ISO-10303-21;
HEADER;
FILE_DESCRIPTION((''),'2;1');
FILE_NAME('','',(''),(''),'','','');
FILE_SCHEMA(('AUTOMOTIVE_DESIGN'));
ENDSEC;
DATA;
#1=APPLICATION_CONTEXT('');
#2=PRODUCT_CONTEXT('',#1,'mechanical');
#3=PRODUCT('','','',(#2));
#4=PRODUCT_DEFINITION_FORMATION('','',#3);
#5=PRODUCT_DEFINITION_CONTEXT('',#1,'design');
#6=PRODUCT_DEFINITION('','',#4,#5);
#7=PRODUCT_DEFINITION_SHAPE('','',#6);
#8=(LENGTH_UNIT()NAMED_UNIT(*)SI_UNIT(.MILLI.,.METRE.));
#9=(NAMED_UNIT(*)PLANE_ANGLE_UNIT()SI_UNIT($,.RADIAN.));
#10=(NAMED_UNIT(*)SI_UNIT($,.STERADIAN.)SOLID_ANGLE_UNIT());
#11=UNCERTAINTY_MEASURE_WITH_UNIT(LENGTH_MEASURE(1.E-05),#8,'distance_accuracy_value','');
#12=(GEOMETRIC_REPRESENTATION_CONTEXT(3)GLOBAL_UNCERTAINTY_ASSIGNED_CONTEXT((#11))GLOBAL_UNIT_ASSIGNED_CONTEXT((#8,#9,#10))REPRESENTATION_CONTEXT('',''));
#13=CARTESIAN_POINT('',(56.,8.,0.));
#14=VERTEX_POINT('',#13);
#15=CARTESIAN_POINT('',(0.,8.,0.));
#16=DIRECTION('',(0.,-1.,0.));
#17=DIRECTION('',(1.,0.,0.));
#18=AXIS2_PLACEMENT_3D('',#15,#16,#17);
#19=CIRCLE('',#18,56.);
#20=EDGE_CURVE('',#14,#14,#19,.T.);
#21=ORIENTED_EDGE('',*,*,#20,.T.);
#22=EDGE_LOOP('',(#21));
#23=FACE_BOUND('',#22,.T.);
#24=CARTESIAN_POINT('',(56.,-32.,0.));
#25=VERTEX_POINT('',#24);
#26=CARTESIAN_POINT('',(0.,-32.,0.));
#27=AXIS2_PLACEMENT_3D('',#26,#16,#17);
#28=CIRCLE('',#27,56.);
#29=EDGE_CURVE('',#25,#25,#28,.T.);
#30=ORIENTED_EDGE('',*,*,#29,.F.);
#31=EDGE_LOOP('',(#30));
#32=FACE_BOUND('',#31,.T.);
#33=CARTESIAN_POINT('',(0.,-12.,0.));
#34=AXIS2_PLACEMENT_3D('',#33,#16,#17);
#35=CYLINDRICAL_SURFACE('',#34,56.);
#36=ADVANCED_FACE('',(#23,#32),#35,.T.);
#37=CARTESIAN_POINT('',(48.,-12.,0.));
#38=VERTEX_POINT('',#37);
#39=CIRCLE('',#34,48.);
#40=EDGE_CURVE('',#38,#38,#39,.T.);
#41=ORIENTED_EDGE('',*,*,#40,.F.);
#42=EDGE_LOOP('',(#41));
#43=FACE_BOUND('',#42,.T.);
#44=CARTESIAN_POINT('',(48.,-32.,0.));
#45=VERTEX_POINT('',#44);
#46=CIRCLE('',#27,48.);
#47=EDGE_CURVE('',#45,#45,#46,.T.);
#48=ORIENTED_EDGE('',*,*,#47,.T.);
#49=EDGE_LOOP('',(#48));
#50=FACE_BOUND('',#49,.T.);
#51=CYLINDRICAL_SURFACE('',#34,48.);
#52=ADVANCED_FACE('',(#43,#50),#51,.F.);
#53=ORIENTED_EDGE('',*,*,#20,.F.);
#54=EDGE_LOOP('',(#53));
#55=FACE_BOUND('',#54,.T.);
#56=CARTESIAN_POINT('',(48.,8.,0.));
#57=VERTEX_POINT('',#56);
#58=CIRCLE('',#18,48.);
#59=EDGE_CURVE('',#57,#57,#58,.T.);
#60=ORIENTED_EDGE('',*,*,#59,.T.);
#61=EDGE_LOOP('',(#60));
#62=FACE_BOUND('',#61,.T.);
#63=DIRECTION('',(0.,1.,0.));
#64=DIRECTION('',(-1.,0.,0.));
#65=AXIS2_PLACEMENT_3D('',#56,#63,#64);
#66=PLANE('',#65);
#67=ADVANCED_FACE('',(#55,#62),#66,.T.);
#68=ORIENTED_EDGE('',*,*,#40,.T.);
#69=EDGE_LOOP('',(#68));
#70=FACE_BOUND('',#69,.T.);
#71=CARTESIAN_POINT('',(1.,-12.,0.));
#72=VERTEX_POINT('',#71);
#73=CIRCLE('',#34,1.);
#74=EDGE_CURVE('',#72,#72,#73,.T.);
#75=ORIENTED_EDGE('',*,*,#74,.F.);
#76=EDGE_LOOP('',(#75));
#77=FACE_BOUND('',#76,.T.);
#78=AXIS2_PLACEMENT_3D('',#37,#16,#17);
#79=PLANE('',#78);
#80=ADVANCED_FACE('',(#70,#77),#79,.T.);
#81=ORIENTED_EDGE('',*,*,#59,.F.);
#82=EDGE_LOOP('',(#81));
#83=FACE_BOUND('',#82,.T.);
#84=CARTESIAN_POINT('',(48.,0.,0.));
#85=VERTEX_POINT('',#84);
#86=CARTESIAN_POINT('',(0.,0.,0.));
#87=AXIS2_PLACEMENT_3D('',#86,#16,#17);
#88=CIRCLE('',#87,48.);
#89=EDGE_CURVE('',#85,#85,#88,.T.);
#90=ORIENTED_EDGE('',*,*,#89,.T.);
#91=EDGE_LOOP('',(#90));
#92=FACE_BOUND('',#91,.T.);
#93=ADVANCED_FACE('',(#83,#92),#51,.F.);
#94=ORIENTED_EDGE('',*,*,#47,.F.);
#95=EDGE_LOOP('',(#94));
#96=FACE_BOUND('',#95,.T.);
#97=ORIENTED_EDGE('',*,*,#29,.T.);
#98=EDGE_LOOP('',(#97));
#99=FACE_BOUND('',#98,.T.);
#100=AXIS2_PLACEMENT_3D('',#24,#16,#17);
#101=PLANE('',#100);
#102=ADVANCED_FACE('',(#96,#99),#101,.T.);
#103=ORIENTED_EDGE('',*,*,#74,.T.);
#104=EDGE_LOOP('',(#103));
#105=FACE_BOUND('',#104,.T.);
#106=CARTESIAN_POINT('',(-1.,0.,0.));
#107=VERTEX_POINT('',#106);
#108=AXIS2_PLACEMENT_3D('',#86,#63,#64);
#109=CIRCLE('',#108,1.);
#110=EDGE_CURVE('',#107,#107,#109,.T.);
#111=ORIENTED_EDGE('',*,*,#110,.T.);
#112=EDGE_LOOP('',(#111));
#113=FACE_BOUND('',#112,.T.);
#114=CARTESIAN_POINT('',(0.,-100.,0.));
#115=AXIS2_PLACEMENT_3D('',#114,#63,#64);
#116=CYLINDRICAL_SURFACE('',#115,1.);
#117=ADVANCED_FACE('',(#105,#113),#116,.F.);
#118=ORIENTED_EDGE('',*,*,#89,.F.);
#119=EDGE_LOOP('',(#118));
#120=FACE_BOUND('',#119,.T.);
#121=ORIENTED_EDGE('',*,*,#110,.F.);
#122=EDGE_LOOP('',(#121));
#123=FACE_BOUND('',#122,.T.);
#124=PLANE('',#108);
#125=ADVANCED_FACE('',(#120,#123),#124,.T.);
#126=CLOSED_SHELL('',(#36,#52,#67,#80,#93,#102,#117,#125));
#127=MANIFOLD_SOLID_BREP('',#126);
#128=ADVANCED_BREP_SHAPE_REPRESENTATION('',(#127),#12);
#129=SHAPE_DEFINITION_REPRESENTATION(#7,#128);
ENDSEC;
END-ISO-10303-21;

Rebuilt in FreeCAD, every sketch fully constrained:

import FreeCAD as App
import Part
import Sketcher
Q = App.Units.Quantity

doc = App.newDocument("Part")
body = doc.addObject("PartDesign::Body", "Body")

sketch1 = doc.addObject("Sketcher::SketchObject", "Sketch")
body.addObject(sketch1)
sketch1.AttachmentSupport = (doc.XY_Plane, [""])
sketch1.MapMode = "FlatFace"
sketch1.addGeometry([
    Part.LineSegment(App.Vector(48, 0, 0), App.Vector(0, 0, 0)),
    Part.LineSegment(App.Vector(0, 0, 0), App.Vector(0, -12, 0)),
    Part.LineSegment(App.Vector(0, -12, 0), App.Vector(48, -12, 0)),
    Part.LineSegment(App.Vector(48, -12, 0), App.Vector(48, -32, 0)),
    Part.LineSegment(App.Vector(48, -32, 0), App.Vector(56, -32, 0)),
    Part.LineSegment(App.Vector(56, -32, 0), App.Vector(56, 8, 0)),
    Part.LineSegment(App.Vector(56, 8, 0), App.Vector(48, 8, 0)),
    Part.LineSegment(App.Vector(48, 8, 0), App.Vector(48, 0, 0)),
], False)
sketch1.addConstraint([
    Sketcher.Constraint("Coincident", 0, 2, 1, 1),
    Sketcher.Constraint("Coincident", 1, 2, 2, 1),
    Sketcher.Constraint("Coincident", 2, 2, 3, 1),
    Sketcher.Constraint("Coincident", 3, 2, 4, 1),
    Sketcher.Constraint("Coincident", 4, 2, 5, 1),
    Sketcher.Constraint("Coincident", 5, 2, 6, 1),
    Sketcher.Constraint("Coincident", 6, 2, 7, 1),
    Sketcher.Constraint("Coincident", 7, 2, 0, 1),
    Sketcher.Constraint("Horizontal", 0),
    Sketcher.Constraint("Vertical", 1),
    Sketcher.Constraint("Horizontal", 2),
    Sketcher.Constraint("Vertical", 3),
    Sketcher.Constraint("Horizontal", 4),
    Sketcher.Constraint("Vertical", 5),
    Sketcher.Constraint("Horizontal", 6),
    Sketcher.Constraint("Vertical", 7),
    Sketcher.Constraint("Coincident", 0, 2, -1, 1),
    Sketcher.Constraint("Vertical", 3, 2, 6, 2),
    Sketcher.Constraint("Equal", 6, 7),
    Sketcher.Constraint("DistanceX", 0, 2, 0, 1, Q("48 mm")),
    Sketcher.Constraint("DistanceX", 4, 1, 4, 2, Q("8 mm")),
    Sketcher.Constraint("DistanceY", 1, 2, 1, 1, Q("12 mm")),
    Sketcher.Constraint("DistanceY", 3, 2, 3, 1, Q("20 mm")),
])
revolution = doc.addObject("PartDesign::Revolution", "Revolution")
body.addObject(revolution)
revolution.Profile = sketch1
revolution.ReferenceAxis = (sketch1, ["V_Axis"])
revolution.Angle = 360

sketch2 = doc.addObject("Sketcher::SketchObject", "Sketch001")
body.addObject(sketch2)
sketch2.AttachmentSupport = (doc.XZ_Plane, [""])
sketch2.MapMode = "FlatFace"
sketch2.addGeometry(Part.Circle(App.Vector(0, 0, 0), App.Vector(0, 0, 1), 1), False)
sketch2.addConstraint([
    Sketcher.Constraint("Coincident", 0, 3, -1, 1),
    Sketcher.Constraint("Diameter", 0, Q("2 mm")),
])
pocket1 = doc.addObject("PartDesign::Pocket", "Pocket")
body.addObject(pocket1)
pocket1.Profile = sketch2
pocket1.Length = 100
pocket1.Reversed = True

doc.recompute()
